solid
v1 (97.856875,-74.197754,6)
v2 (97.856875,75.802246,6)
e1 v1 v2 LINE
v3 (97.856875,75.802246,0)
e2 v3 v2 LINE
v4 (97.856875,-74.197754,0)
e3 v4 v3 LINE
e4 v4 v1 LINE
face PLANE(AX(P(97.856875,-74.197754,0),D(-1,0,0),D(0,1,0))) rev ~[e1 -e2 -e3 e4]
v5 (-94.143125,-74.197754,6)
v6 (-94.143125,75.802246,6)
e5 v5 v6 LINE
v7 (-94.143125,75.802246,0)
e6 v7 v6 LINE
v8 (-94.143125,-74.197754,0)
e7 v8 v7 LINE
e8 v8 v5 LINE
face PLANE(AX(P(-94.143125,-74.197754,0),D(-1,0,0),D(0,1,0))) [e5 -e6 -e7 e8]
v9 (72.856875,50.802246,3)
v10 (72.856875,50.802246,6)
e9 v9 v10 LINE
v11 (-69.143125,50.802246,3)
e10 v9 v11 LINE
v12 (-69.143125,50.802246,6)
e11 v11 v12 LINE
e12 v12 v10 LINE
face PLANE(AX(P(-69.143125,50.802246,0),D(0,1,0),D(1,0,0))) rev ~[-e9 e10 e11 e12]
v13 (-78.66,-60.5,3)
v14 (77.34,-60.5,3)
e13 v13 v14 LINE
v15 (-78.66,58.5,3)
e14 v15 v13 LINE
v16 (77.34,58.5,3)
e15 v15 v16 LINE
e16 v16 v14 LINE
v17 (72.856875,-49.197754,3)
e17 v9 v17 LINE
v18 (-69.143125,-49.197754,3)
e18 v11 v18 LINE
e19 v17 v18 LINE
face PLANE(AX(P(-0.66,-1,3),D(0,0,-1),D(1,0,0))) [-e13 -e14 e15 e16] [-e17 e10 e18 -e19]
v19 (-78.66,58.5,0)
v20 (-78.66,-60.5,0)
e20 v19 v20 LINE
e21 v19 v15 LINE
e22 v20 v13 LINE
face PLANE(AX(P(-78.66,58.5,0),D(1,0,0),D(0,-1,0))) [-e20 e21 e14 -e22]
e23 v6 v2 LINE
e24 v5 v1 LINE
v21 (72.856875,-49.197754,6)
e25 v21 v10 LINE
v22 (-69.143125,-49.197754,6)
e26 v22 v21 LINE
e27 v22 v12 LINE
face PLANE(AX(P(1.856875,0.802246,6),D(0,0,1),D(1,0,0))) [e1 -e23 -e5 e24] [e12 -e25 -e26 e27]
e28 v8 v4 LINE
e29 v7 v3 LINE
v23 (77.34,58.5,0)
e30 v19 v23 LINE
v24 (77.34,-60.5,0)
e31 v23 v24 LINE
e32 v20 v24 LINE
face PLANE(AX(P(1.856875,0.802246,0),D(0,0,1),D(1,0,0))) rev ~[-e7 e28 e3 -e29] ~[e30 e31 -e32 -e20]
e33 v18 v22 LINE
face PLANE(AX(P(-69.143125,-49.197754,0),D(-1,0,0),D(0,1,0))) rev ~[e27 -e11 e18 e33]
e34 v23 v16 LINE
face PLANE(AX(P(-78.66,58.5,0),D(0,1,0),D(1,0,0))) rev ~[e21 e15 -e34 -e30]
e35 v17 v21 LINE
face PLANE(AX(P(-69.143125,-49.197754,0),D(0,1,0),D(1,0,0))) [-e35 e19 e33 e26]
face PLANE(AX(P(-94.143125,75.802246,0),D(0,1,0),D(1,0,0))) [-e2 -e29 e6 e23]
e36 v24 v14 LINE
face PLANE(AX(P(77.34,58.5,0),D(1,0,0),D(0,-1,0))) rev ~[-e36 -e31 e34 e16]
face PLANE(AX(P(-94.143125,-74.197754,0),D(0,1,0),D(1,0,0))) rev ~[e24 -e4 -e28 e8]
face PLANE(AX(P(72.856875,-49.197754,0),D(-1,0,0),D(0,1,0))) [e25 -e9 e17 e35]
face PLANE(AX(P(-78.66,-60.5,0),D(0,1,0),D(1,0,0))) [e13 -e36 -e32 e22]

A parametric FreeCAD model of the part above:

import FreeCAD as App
import Part
import Sketcher
from FreeCAD import Vector


def add_polygon(sketch, points):
    """Adds a closed chain of lines whose ends are joined by coincident constraints."""
    first, n = sketch.GeometryCount, len(points)
    for a, b in zip(points, points[1:] + points[:1]):
        sketch.addGeometry(Part.LineSegment(App.Vector(*a, 0), App.Vector(*b, 0)), False)
    for i in range(n):
        sketch.addConstraint(Sketcher.Constraint("Coincident", first + i, 2, first + (i + 1) % n, 1))

doc = App.newDocument("Part")
body = doc.addObject("PartDesign::Body", "Body")

# Sketch on XY plane
sketch1 = body.newObject("Sketcher::SketchObject", "Sketch")
sketch1.AttachmentSupport = (doc.getObject("XY_Plane"), [""])
sketch1.MapMode = "FlatFace"
add_polygon(sketch1, [(-94, 76), (-94, -74), (98, -74), (98, 76)])  # lines 0-3
add_polygon(sketch1, [(73, -49), (-69, -49), (-69, 51), (73, 51)])  # lines 4-7
sketch1.addConstraint([
    Sketcher.Constraint("Vertical", 0),
    Sketcher.Constraint("Horizontal", 1),
    Sketcher.Constraint("Vertical", 2),
    Sketcher.Constraint("Horizontal", 3),
    Sketcher.Constraint("Horizontal", 4),
    Sketcher.Constraint("Vertical", 5),
    Sketcher.Constraint("Horizontal", 6),
    Sketcher.Constraint("Vertical", 7),
    Sketcher.Constraint("DistanceX", 1, 1, 1, 2, 192.0),
    Sketcher.Constraint("DistanceX", 4, 2, 4, 1, 142.0),
    Sketcher.Constraint("DistanceY", 0, 2, 0, 1, 150.0),
    Sketcher.Constraint("DistanceY", 5, 1, 5, 2, 100.0),
    Sketcher.Constraint("DistanceX", 0, 2, 4, 2, 25.0),
    Sketcher.Constraint("DistanceY", 0, 2, 4, 2, 25.0),
    Sketcher.Constraint("DistanceX", 0, 2, -1, 1, 94.143125),
    Sketcher.Constraint("DistanceY", 0, 2, -1, 1, 74.197754),
])
pad1 = body.newObject("PartDesign::Pad", "Pad")
pad1.Profile = sketch1
pad1.Length = 6

# Sketch on XY plane
sketch2 = body.newObject("Sketcher::SketchObject", "Sketch001")
sketch2.AttachmentSupport = (doc.getObject("XY_Plane"), [""])
sketch2.MapMode = "FlatFace"
add_polygon(sketch2, [(-79, -60), (-79, 58), (77, 58), (77, -60)])  # lines 0-3
sketch2.addConstraint([
    Sketcher.Constraint("Vertical", 0),
    Sketcher.Constraint("Horizontal", 1),
    Sketcher.Constraint("Vertical", 2),
    Sketcher.Constraint("Horizontal", 3),
    Sketcher.Constraint("DistanceX", 1, 1, 1, 2, 156.0),
    Sketcher.Constraint("DistanceY", 0, 1, 0, 2, 119.0),
    Sketcher.Constraint("DistanceY", -1, 1, 0, 2, 58.5),
    Sketcher.Constraint("DistanceX", 0, 2, -1, 1, 78.66),
])
pocket1 = body.newObject("PartDesign::Pocket", "Pocket")
pocket1.Profile = sketch2
pocket1.Length = 3
pocket1.Reversed = True

doc.recompute()
